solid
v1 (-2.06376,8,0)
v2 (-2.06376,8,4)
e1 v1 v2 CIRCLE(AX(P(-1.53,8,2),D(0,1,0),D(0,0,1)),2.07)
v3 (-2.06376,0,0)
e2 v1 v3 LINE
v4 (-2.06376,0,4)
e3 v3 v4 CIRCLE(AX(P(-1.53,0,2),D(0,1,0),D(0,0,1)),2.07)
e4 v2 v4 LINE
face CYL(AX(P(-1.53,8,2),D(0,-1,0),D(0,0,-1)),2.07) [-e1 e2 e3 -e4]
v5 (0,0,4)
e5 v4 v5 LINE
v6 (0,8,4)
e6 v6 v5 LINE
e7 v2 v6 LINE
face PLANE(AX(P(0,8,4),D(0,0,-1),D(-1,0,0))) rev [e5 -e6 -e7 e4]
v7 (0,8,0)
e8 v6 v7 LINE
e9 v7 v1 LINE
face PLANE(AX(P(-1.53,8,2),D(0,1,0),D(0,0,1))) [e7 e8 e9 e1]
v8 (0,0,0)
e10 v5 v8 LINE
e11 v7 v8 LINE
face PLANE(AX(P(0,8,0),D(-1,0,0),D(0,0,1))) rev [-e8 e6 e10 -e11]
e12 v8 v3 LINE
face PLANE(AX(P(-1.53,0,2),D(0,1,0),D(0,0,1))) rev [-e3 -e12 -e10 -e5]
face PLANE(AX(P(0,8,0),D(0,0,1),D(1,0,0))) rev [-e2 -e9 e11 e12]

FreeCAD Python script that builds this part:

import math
import FreeCAD as App
import Part
import Sketcher

V = App.Vector

doc = App.newDocument("Part")
params = doc.addObject("Spreadsheet::Sheet", "Params")
for row, (alias, value) in enumerate([
    ("sketch1_height", "4 mm"),
    ("sketch1_radius", "2.07 mm"),
    ("pad1_length", "8 mm"),
], start=1):
    params.set(f"A{row}", alias)
    params.set(f"B{row}", "=" + value)
    params.setAlias(f"B{row}", alias)

body = doc.addObject("PartDesign::Body", "Body")

sketch1 = body.newObject("Sketcher::SketchObject", "Sketch")
sketch1.AttachmentSupport = (doc.getObject("XZ_Plane"), [""])
sketch1.MapMode = "FlatFace"
sketch1.addGeometry(Part.LineSegment(V(0, 4, 0), V(0, 0, 0)), False)
sketch1.addGeometry(Part.LineSegment(V(0, 0, 0), V(-2.1, 0, 0)), False)
sketch1.addGeometry(Part.ArcOfCircle(Part.Circle(V(-1.5, 2, 0), V(0, 0, 1), 2.1), math.radians(105), math.radians(255)), False)
sketch1.addGeometry(Part.LineSegment(V(-2.1, 4, 0), V(0, 4, 0)), False)
sketch1.addConstraint(Sketcher.Constraint("Coincident", 0, 2, 1, 1))
sketch1.addConstraint(Sketcher.Constraint("Coincident", 1, 2, 2, 2))
sketch1.addConstraint(Sketcher.Constraint("Coincident", 2, 1, 3, 1))
sketch1.addConstraint(Sketcher.Constraint("Coincident", 3, 2, 0, 1))
sketch1.addConstraint(Sketcher.Constraint("Vertical", 0))
sketch1.addConstraint(Sketcher.Constraint("Horizontal", 1))
sketch1.addConstraint(Sketcher.Constraint("Horizontal", 3))
sketch1.addConstraint(Sketcher.Constraint("Coincident", 0, 2, -1, 1))
sketch1.addConstraint(Sketcher.Constraint("Vertical", 1, 2, 2, 1))
sketch1.addConstraint(Sketcher.Constraint("DistanceY", 0, 2, 0, 1, 4.0))
sketch1.addConstraint(Sketcher.Constraint("Radius", 2, 2.07))
sketch1.addConstraint(Sketcher.Constraint("DistanceX", 2, 3, -1, 1, 1.53))
sketch1.setExpression("Constraints[9]", "Params.sketch1_height")
sketch1.setExpression("Constraints[10]", "Params.sketch1_radius")
pad1 = body.newObject("PartDesign::Pad", "Pad")
pad1.Profile = sketch1
pad1.setExpression("Length", "Params.pad1_length")
pad1.Reversed = True

doc.recompute()
